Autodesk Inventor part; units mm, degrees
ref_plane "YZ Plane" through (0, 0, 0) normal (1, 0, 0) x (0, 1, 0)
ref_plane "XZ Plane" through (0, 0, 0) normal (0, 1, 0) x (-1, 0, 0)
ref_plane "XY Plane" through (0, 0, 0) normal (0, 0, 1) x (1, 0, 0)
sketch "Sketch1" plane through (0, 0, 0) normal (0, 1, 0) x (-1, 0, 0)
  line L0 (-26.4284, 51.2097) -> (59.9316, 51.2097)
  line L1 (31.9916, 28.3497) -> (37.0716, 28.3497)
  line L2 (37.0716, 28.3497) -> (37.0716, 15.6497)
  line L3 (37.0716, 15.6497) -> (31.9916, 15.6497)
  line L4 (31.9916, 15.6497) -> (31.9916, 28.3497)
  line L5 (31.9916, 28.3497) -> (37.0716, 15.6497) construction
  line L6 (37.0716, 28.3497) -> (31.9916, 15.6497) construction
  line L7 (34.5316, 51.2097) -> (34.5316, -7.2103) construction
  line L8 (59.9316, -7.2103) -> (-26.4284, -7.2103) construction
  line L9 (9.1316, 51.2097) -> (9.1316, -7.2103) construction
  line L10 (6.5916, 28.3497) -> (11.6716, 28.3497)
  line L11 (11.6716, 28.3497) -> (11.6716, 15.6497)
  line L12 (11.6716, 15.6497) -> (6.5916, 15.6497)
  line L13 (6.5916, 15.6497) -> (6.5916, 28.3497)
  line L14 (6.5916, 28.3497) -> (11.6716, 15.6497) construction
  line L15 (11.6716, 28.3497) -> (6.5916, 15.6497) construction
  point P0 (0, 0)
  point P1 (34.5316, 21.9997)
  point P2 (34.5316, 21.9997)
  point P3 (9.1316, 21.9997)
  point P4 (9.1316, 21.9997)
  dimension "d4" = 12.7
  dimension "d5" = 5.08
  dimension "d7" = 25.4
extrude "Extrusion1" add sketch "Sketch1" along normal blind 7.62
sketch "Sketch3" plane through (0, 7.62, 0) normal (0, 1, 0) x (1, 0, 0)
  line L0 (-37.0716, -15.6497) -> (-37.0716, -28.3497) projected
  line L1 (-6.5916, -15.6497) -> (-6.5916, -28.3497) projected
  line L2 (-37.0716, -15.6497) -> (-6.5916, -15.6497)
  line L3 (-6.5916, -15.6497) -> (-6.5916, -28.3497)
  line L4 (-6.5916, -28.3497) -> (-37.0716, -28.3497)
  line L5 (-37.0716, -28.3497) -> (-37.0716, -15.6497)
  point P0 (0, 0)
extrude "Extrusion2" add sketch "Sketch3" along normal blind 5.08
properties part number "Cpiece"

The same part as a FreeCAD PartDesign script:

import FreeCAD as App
import Part
import Sketcher
from FreeCAD import Vector
Q = App.Units.Quantity

doc = App.newDocument("Part")
params = doc.addObject("Spreadsheet::Sheet", "Params")
for row, (alias, value) in enumerate([
    ("sketch1_width", "0.2 in"),
    ("sketch1_height", "0.5 in"),
    ("pad1_length", "0.3 in"),
    ("sketch2_width", "1.2 in"),
    ("sketch2_height", "0.5 in"),
    ("pad2_length", "0.2 in"),
], start=1):
    params.set(f"A{row}", alias)
    params.set(f"B{row}", "=" + value)
    params.setAlias(f"B{row}", alias)

body = doc.addObject("PartDesign::Body", "Body")
body.AllowCompound = True

sketch1 = doc.addObject("Sketcher::SketchObject", "Sketch")
body.addObject(sketch1)
sketch1.AttachmentSupport = (doc.XZ_Plane, [""])
sketch1.MapMode = "FlatFace"
sketch1.addGeometry(Part.LineSegment(Vector(-37.0716, 28.3497, 0), Vector(-31.9916, 28.3497, 0)), False)
sketch1.addGeometry(Part.LineSegment(Vector(-31.9916, 28.3497, 0), Vector(-31.9916, 15.6497, 0)), False)
sketch1.addGeometry(Part.LineSegment(Vector(-31.9916, 15.6497, 0), Vector(-37.0716, 15.6497, 0)), False)
sketch1.addGeometry(Part.LineSegment(Vector(-37.0716, 15.6497, 0), Vector(-37.0716, 28.3497, 0)), False)
sketch1.addGeometry(Part.LineSegment(Vector(-11.6716, 28.3497, 0), Vector(-6.5916, 28.3497, 0)), False)
sketch1.addGeometry(Part.LineSegment(Vector(-6.5916, 28.3497, 0), Vector(-6.5916, 15.6497, 0)), False)
sketch1.addGeometry(Part.LineSegment(Vector(-6.5916, 15.6497, 0), Vector(-11.6716, 15.6497, 0)), False)
sketch1.addGeometry(Part.LineSegment(Vector(-11.6716, 15.6497, 0), Vector(-11.6716, 28.3497, 0)), False)
sketch1.addConstraint(Sketcher.Constraint("Coincident", 0, 2, 1, 1))
sketch1.addConstraint(Sketcher.Constraint("Coincident", 1, 2, 2, 1))
sketch1.addConstraint(Sketcher.Constraint("Coincident", 2, 2, 3, 1))
sketch1.addConstraint(Sketcher.Constraint("Coincident", 3, 2, 0, 1))
sketch1.addConstraint(Sketcher.Constraint("Coincident", 4, 2, 5, 1))
sketch1.addConstraint(Sketcher.Constraint("Coincident", 5, 2, 6, 1))
sketch1.addConstraint(Sketcher.Constraint("Coincident", 6, 2, 7, 1))
sketch1.addConstraint(Sketcher.Constraint("Coincident", 7, 2, 4, 1))
sketch1.addConstraint(Sketcher.Constraint("Horizontal", 0))
sketch1.addConstraint(Sketcher.Constraint("Vertical", 1))
sketch1.addConstraint(Sketcher.Constraint("Horizontal", 2))
sketch1.addConstraint(Sketcher.Constraint("Vertical", 3))
sketch1.addConstraint(Sketcher.Constraint("Horizontal", 4))
sketch1.addConstraint(Sketcher.Constraint("Vertical", 5))
sketch1.addConstraint(Sketcher.Constraint("Horizontal", 6))
sketch1.addConstraint(Sketcher.Constraint("Vertical", 7))
sketch1.addConstraint(Sketcher.Constraint("Horizontal", 3, 2, 4, 2))
sketch1.addConstraint(Sketcher.Constraint("Horizontal", 2, 2, 5, 2))
sketch1.addConstraint(Sketcher.Constraint("Equal", 2, 4))
sketch1.addConstraint(Sketcher.Constraint("DistanceX", 0, 1, 0, 2, Q("0.2 in")))
sketch1.addConstraint(Sketcher.Constraint("DistanceY", 1, 2, 1, 1, Q("0.5 in")))
sketch1.addConstraint(Sketcher.Constraint("DistanceX", 0, 2, 4, 2, Q("1 in")))
sketch1.addConstraint(Sketcher.Constraint("DistanceX", 0, 2, -1, 1, Q("1.2595 in")))
sketch1.addConstraint(Sketcher.Constraint("DistanceY", -1, 1, 0, 2, 28.3497))
sketch1.setExpression("Constraints[19]", "Params.sketch1_width")
sketch1.setExpression("Constraints[20]", "Params.sketch1_height")
pad1 = doc.addObject("PartDesign::Pad", "Pad")
body.addObject(pad1)
pad1.Profile = sketch1
pad1.setExpression("Length", "Params.pad1_length")
pad1.Reversed = True

sketch2 = doc.addObject("Sketcher::SketchObject", "Sketch001")
body.addObject(sketch2)
sketch2.AttachmentSupport = (doc.XZ_Plane, [""])
sketch2.MapMode = "FlatFace"
sketch2.AttachmentOffset = App.Placement(Vector(0, 0, -0.3 * 25.4), App.Rotation())
sketch2.addGeometry(Part.LineSegment(Vector(-6.5916, 15.6497, 0), Vector(-37.0716, 15.6497, 0)), False)
sketch2.addGeometry(Part.LineSegment(Vector(-37.0716, 15.6497, 0), Vector(-37.0716, 28.3497, 0)), False)
sketch2.addGeometry(Part.LineSegment(Vector(-37.0716, 28.3497, 0), Vector(-6.5916, 28.3497, 0)), False)
sketch2.addGeometry(Part.LineSegment(Vector(-6.5916, 28.3497, 0), Vector(-6.5916, 15.6497, 0)), False)
sketch2.addConstraint(Sketcher.Constraint("Coincident", 0, 2, 1, 1))
sketch2.addConstraint(Sketcher.Constraint("Coincident", 1, 2, 2, 1))
sketch2.addConstraint(Sketcher.Constraint("Coincident", 2, 2, 3, 1))
sketch2.addConstraint(Sketcher.Constraint("Coincident", 3, 2, 0, 1))
sketch2.addConstraint(Sketcher.Constraint("Horizontal", 0))
sketch2.addConstraint(Sketcher.Constraint("Vertical", 1))
sketch2.addConstraint(Sketcher.Constraint("Horizontal", 2))
sketch2.addConstraint(Sketcher.Constraint("Vertical", 3))
sketch2.addConstraint(Sketcher.Constraint("DistanceX", 0, 2, 0, 1, Q("1.2 in")))
sketch2.addConstraint(Sketcher.Constraint("DistanceY", 1, 1, 1, 2, Q("0.5 in")))
sketch2.addConstraint(Sketcher.Constraint("DistanceX", 0, 2, -1, 1, Q("1.4595 in")))
sketch2.addConstraint(Sketcher.Constraint("DistanceY", -1, 1, 0, 2, 15.6497))
sketch2.setExpression("Constraints[8]", "Params.sketch2_width")
sketch2.setExpression("Constraints[9]", "Params.sketch2_height")
pad2 = doc.addObject("PartDesign::Pad", "Pad001")
body.addObject(pad2)
pad2.Profile = sketch2
pad2.setExpression("Length", "Params.pad2_length")
pad2.Reversed = True

doc.recompute()
